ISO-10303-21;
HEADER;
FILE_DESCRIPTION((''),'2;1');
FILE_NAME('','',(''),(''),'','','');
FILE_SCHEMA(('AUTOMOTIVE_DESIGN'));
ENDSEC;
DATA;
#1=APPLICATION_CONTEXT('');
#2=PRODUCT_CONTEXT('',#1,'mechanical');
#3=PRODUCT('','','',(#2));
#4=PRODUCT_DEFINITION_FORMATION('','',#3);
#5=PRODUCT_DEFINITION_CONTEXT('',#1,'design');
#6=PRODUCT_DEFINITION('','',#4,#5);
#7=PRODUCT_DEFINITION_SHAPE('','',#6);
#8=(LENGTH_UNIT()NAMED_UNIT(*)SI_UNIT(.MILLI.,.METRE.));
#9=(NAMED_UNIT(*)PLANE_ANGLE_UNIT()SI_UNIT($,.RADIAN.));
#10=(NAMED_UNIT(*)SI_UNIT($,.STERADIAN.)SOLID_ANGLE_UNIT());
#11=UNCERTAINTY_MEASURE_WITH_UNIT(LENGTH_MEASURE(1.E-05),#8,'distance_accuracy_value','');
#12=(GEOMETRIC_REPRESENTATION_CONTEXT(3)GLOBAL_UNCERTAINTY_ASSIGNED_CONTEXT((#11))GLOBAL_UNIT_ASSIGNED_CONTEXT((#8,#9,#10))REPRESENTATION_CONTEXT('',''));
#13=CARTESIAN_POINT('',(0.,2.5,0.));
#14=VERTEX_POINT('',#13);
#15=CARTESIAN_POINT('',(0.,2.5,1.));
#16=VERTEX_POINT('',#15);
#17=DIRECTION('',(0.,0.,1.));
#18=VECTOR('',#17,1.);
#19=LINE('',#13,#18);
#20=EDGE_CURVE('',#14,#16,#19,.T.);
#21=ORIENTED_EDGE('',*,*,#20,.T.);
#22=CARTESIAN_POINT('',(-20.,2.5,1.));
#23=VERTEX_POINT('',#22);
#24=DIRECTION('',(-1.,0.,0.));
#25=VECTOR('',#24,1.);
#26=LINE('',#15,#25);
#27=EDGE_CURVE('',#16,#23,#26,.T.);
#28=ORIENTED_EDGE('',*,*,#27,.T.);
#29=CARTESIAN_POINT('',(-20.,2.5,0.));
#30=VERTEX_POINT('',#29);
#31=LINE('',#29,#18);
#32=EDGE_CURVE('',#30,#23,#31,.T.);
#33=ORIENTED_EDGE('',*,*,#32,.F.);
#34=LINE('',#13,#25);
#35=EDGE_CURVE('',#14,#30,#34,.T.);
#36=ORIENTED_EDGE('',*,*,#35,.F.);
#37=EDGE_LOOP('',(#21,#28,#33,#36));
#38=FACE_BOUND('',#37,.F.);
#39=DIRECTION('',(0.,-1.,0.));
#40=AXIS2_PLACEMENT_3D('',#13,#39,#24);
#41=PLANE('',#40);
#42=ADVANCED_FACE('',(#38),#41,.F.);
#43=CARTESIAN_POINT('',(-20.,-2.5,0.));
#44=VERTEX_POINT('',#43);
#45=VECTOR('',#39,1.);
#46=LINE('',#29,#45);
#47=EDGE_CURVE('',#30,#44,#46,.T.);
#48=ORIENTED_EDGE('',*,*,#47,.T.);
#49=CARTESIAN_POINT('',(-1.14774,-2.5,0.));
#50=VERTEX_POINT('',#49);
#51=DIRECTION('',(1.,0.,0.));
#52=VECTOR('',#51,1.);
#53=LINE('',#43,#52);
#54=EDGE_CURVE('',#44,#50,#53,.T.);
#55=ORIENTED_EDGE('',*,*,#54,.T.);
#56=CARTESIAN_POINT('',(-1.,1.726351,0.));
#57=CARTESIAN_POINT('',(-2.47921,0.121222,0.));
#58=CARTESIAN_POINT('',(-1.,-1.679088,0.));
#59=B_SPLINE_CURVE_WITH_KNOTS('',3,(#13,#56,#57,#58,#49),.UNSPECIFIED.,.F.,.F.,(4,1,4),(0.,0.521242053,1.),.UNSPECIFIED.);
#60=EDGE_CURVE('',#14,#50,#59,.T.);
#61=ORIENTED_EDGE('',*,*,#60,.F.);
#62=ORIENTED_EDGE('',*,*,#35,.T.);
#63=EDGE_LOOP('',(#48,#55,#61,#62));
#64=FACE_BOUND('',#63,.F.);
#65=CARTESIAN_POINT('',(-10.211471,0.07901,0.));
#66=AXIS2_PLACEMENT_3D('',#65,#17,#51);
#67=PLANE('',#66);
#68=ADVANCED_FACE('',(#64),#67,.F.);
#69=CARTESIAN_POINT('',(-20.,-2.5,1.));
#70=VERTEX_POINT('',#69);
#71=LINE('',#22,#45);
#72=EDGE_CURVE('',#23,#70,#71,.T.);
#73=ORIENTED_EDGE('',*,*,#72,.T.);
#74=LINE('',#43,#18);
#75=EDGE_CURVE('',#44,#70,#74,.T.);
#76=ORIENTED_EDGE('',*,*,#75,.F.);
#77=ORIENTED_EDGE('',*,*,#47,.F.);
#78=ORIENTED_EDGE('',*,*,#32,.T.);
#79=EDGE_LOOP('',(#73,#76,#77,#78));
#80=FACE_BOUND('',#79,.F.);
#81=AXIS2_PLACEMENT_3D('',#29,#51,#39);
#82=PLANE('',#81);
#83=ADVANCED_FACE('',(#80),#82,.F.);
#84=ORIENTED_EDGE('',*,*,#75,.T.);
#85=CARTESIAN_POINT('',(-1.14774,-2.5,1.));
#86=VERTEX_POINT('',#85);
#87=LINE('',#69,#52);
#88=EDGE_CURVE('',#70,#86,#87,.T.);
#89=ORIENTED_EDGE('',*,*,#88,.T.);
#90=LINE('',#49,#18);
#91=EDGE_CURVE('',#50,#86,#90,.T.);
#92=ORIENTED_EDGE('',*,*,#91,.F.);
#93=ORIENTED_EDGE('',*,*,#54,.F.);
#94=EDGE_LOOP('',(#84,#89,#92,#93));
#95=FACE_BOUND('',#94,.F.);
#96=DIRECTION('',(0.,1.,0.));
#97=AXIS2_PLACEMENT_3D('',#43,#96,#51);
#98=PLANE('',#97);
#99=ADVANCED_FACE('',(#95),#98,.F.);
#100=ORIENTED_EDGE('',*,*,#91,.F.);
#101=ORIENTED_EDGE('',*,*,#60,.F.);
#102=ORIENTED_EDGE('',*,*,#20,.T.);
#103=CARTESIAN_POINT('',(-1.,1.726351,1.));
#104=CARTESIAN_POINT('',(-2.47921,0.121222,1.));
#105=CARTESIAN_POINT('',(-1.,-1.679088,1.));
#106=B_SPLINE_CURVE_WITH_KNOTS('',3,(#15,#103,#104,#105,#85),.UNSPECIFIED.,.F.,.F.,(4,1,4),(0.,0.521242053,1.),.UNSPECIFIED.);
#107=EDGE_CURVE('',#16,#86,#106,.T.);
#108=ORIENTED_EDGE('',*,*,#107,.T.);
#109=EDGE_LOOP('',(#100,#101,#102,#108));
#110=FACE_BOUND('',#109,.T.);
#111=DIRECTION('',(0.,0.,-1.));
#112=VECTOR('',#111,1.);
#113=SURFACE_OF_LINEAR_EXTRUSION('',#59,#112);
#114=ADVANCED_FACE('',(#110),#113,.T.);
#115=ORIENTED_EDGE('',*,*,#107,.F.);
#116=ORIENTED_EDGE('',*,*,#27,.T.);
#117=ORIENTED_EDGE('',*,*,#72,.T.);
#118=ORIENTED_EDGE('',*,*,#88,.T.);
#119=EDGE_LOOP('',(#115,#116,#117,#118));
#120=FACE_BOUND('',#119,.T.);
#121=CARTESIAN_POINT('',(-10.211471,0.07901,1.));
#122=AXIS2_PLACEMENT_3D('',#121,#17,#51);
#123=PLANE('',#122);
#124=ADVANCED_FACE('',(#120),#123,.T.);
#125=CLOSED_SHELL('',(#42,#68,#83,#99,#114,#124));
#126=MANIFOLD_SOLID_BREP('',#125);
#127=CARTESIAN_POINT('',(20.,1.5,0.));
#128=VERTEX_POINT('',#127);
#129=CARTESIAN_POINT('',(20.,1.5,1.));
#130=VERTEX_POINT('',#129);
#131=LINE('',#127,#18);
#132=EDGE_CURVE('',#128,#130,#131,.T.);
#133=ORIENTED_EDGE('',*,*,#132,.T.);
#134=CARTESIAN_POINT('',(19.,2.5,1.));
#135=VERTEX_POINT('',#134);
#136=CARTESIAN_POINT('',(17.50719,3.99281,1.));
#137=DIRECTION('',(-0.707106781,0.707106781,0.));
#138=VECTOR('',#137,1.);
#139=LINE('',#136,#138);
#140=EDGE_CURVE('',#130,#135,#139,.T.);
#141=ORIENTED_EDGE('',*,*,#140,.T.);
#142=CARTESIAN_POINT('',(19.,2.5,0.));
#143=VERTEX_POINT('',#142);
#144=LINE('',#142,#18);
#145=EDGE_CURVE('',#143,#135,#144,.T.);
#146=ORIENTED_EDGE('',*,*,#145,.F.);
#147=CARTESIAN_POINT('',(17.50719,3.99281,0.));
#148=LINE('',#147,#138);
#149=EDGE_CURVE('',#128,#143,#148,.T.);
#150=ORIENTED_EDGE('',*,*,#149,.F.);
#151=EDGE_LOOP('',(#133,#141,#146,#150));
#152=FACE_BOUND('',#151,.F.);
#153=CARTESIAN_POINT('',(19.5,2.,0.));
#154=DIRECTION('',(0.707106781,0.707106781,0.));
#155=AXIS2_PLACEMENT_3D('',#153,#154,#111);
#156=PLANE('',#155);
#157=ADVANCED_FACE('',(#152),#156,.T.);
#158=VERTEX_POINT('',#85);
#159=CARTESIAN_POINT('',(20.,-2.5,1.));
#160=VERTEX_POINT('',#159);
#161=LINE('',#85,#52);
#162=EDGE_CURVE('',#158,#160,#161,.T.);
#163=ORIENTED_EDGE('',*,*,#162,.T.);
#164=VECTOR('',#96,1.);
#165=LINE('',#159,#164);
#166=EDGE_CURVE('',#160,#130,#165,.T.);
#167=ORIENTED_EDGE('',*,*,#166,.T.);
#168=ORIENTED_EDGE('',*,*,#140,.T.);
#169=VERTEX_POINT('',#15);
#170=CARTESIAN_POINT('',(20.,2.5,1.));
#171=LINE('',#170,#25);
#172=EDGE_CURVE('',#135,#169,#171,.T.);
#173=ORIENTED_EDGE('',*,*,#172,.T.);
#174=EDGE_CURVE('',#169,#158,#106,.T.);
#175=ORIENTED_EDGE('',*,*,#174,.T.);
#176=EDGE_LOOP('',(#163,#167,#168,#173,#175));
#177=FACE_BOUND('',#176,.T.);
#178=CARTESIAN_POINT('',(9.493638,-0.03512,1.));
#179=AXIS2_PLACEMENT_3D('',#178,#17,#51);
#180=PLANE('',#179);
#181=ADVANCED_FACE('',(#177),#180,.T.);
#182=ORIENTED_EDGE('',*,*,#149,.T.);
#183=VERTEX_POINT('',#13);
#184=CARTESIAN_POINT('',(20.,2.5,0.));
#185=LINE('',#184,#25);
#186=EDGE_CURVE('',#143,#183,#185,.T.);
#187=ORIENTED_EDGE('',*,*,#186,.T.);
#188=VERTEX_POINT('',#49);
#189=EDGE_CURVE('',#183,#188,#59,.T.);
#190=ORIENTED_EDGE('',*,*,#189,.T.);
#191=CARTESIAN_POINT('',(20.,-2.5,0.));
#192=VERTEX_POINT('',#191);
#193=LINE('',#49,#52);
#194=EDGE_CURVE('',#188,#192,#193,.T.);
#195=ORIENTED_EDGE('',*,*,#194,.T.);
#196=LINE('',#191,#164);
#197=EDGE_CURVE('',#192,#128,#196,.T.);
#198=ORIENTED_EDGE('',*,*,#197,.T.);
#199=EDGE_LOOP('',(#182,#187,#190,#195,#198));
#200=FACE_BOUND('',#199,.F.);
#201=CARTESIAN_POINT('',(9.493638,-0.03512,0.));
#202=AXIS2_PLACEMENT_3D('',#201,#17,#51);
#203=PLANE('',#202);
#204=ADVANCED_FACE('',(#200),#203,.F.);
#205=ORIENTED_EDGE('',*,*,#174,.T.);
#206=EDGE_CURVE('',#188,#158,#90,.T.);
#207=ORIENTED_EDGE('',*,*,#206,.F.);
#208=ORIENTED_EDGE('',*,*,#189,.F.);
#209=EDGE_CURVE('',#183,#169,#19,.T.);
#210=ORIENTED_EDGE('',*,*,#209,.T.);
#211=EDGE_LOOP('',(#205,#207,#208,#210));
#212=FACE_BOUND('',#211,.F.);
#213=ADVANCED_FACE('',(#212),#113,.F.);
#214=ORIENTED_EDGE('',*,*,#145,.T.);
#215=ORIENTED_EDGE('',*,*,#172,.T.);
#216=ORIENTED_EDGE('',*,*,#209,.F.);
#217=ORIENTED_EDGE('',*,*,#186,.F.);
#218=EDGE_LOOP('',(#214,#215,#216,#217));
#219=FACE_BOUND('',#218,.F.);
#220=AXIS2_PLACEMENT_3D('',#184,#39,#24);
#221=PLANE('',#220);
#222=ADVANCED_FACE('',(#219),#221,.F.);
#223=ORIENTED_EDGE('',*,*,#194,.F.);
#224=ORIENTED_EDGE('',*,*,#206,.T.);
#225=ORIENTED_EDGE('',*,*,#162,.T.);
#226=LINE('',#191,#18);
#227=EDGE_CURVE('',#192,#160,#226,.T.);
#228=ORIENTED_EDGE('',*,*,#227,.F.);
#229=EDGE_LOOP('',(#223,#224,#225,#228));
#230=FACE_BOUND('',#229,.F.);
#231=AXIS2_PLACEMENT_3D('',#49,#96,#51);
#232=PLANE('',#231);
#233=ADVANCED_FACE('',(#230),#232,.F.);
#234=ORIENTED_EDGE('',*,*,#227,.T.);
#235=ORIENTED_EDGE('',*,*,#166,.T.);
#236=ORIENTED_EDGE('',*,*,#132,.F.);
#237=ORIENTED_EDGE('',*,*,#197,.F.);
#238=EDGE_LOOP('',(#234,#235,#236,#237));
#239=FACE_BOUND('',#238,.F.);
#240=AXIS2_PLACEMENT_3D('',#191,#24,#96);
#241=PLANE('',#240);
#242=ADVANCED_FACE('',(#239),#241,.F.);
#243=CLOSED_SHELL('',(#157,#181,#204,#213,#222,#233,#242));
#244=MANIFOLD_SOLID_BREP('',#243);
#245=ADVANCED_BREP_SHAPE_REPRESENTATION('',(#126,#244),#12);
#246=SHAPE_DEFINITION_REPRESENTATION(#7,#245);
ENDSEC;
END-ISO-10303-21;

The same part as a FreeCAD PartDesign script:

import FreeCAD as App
import Part
import Sketcher
from FreeCAD import Vector
Q = App.Units.Quantity


def edges_at(feature, points):
    """Names of the edges that pass closest to the given points."""
    edges = feature.Shape.Edges
    near = lambda p: min(range(len(edges)), key=lambda i: edges[i].distToShape(Part.Vertex(*p))[0])
    return sorted({f"Edge{near(p) + 1}" for p in points})

doc = App.newDocument("Part")
body = doc.addObject("PartDesign::Body", "Body")

# Sketch on XY plane
sketch1 = body.newObject("Sketcher::SketchObject", "Sketch")
sketch1.AttachmentSupport = (doc.getObject("XY_Plane"), [""])
sketch1.MapMode = "FlatFace"
sketch1.addGeometry([
    Part.LineSegment(Vector(-20, -2.5, 0), Vector(-1.14774, -2.5, 0)),
    Part.BSplineCurve([Vector(0, 2.5, 0), Vector(-1, 1.726351, 0), Vector(-2.47921, 0.121222, 0), Vector(-1, -1.679088, 0), Vector(-1.14774, -2.5, 0)], [4, 1, 4], [0, 0.521242053, 1], False, 3, [1, 1, 1, 1, 1], False),
    Part.LineSegment(Vector(0, 2.5, 0), Vector(-20, 2.5, 0)),
    Part.LineSegment(Vector(-20, 2.5, 0), Vector(-20, -2.5, 0)),
], False)
sketch1.addConstraint([
    Sketcher.Constraint("Block", 1),
    Sketcher.Constraint("Coincident", 0, 2, 1, 2),
    Sketcher.Constraint("Coincident", 1, 1, 2, 1),
    Sketcher.Constraint("Coincident", 2, 2, 3, 1),
    Sketcher.Constraint("Coincident", 3, 2, 0, 1),
    Sketcher.Constraint("Horizontal", 0),
    Sketcher.Constraint("Horizontal", 2),
    Sketcher.Constraint("Vertical", 3),
    Sketcher.Constraint("DistanceX", 2, 2, 2, 1, Q("20 mm")),
])
pad1 = body.newObject("PartDesign::Pad", "Pad")
pad1.Profile = sketch1
pad1.Length = 1
body2 = doc.addObject("PartDesign::Body", "Body001")

# Sketch on XY plane
sketch2 = body2.newObject("Sketcher::SketchObject", "Sketch001")
sketch2.AttachmentSupport = (doc.getObject("XY_Plane001"), [""])
sketch2.MapMode = "FlatFace"
sketch2.addGeometry([
    Part.LineSegment(Vector(-1.14774, -2.5, 0), Vector(20, -2.5, 0)),
    Part.LineSegment(Vector(20, -2.5, 0), Vector(20, 2.5, 0)),
    Part.LineSegment(Vector(20, 2.5, 0), Vector(0, 2.5, 0)),
    Part.BSplineCurve([Vector(0, 2.5, 0), Vector(-1, 1.726351, 0), Vector(-2.47921, 0.121222, 0), Vector(-1, -1.679088, 0), Vector(-1.14774, -2.5, 0)], [4, 1, 4], [0, 0.521242053, 1], False, 3, [1, 1, 1, 1, 1], False),
], False)
sketch2.addConstraint([
    Sketcher.Constraint("Block", 3),
    Sketcher.Constraint("Coincident", 0, 2, 1, 1),
    Sketcher.Constraint("Coincident", 1, 2, 2, 1),
    Sketcher.Constraint("Coincident", 2, 2, 3, 1),
    Sketcher.Constraint("Coincident", 3, 2, 0, 1),
    Sketcher.Constraint("Horizontal", 0),
    Sketcher.Constraint("Vertical", 1),
    Sketcher.Constraint("Horizontal", 2),
    Sketcher.Constraint("DistanceX", 2, 2, 2, 1, Q("20 mm")),
])
pad2 = body2.newObject("PartDesign::Pad", "Pad001")
pad2.Profile = sketch2
pad2.Length = 1
doc.recompute()

chamfer = body2.newObject("PartDesign::Chamfer", "Chamfer")
chamfer.Base = (pad2, edges_at(pad2, [(20, 2.5, 0.5)]))
chamfer.Size = 1

doc.recompute()
